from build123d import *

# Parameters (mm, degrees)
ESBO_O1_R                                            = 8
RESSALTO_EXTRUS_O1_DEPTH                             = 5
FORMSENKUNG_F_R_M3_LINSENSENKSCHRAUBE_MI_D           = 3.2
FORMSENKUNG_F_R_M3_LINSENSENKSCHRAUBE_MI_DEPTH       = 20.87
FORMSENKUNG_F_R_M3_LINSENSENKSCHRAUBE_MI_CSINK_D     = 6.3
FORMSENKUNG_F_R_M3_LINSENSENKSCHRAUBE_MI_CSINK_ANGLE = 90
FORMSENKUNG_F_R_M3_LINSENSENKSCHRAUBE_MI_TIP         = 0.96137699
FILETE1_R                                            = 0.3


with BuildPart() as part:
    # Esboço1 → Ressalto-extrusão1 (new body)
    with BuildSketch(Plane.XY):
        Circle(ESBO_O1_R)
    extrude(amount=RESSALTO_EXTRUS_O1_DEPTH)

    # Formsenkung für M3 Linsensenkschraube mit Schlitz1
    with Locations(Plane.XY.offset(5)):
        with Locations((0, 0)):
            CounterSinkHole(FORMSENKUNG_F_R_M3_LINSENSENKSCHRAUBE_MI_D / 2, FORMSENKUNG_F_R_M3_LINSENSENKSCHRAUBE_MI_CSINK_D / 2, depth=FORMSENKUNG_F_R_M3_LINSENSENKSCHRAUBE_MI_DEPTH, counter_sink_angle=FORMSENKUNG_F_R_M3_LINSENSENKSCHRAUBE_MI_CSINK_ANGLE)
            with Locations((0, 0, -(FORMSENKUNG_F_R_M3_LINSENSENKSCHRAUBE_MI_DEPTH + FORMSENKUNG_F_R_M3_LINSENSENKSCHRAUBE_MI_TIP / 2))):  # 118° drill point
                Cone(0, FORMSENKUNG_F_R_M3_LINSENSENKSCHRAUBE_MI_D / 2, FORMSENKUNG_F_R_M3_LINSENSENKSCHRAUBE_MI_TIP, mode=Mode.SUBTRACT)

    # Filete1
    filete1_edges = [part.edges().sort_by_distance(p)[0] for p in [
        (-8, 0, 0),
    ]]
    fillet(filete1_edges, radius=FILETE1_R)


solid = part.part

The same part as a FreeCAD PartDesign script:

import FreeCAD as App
import Part
import Sketcher

V = App.Vector
Q = App.Units.Quantity


def edges_at(feature, points):
    """Names of the edges that pass closest to the given points."""
    edges = feature.Shape.Edges
    near = lambda p: min(range(len(edges)), key=lambda i: edges[i].distToShape(Part.Vertex(*p))[0])
    return sorted({f"Edge{near(p) + 1}" for p in points})

doc = App.newDocument("Part")
params = doc.addObject("Spreadsheet::Sheet", "Params")
for row, (alias, value) in enumerate([
    ("sketch1_diameter", "16 mm"),
    ("pad1_length", "5 mm"),
    ("sketch2_diameter", "3.2 mm"),
    ("hole_diameter", "3.2 mm"),
    ("hole_depth", "20.87 mm"),
    ("hole_csink_diameter", "6.3 mm"),
    ("fillet_radius", "0.3 mm"),
], start=1):
    params.set(f"A{row}", alias)
    params.set(f"B{row}", "=" + value)
    params.setAlias(f"B{row}", alias)

body = doc.addObject("PartDesign::Body", "Body")

# Sketch on XY plane
sketch1 = body.newObject("Sketcher::SketchObject", "Sketch")
sketch1.AttachmentSupport = (doc.getObject("XY_Plane"), [""])
sketch1.MapMode = "FlatFace"
sketch1.addGeometry(Part.Circle(V(0, 0, 0), V(0, 0, 1), 8), False)
sketch1.addConstraint(Sketcher.Constraint("Coincident", 0, 3, -1, 1))
sketch1.addConstraint(Sketcher.Constraint("Diameter", 0, Q("16 mm")))
sketch1.setExpression("Constraints[1]", "Params.sketch1_diameter")
pad1 = body.newObject("PartDesign::Pad", "Pad")
pad1.Profile = sketch1
pad1.setExpression("Length", "Params.pad1_length")

# Sketch on XY plane
sketch2 = body.newObject("Sketcher::SketchObject", "Sketch001")
sketch2.AttachmentSupport = (doc.getObject("XY_Plane"), [""])
sketch2.MapMode = "FlatFace"
sketch2.AttachmentOffset = App.Placement(V(0, 0, 5), App.Rotation())
sketch2.addGeometry(Part.Circle(V(0, 0, 0), V(0, 0, 1), 1.6), False)
sketch2.addConstraint(Sketcher.Constraint("Coincident", 0, 3, -1, 1))
sketch2.addConstraint(Sketcher.Constraint("Diameter", 0, Q("3.2 mm")))
sketch2.setExpression("Constraints[1]", "Params.sketch2_diameter")
doc.recompute()
hole = body.newObject("PartDesign::Hole", "Hole")
hole.Profile = sketch2
hole.ThreadType = "None"
hole.setExpression("Diameter", "Params.hole_diameter")
hole.DepthType = "Dimension"
hole.setExpression("Depth", "Params.hole_depth")
hole.DrillPoint = "Angled"
hole.DrillPointAngle = 118
hole.HoleCutType = "Countersink"
hole.setExpression("HoleCutDiameter", "Params.hole_csink_diameter")
hole.HoleCutCountersinkAngle = 90
doc.recompute()

fillet = body.newObject("PartDesign::Fillet", "Fillet")
fillet.Base = (hole, edges_at(hole, [(-8, 0, 0)]))
fillet.setExpression("Radius", "Params.fillet_radius")

doc.recompute()
